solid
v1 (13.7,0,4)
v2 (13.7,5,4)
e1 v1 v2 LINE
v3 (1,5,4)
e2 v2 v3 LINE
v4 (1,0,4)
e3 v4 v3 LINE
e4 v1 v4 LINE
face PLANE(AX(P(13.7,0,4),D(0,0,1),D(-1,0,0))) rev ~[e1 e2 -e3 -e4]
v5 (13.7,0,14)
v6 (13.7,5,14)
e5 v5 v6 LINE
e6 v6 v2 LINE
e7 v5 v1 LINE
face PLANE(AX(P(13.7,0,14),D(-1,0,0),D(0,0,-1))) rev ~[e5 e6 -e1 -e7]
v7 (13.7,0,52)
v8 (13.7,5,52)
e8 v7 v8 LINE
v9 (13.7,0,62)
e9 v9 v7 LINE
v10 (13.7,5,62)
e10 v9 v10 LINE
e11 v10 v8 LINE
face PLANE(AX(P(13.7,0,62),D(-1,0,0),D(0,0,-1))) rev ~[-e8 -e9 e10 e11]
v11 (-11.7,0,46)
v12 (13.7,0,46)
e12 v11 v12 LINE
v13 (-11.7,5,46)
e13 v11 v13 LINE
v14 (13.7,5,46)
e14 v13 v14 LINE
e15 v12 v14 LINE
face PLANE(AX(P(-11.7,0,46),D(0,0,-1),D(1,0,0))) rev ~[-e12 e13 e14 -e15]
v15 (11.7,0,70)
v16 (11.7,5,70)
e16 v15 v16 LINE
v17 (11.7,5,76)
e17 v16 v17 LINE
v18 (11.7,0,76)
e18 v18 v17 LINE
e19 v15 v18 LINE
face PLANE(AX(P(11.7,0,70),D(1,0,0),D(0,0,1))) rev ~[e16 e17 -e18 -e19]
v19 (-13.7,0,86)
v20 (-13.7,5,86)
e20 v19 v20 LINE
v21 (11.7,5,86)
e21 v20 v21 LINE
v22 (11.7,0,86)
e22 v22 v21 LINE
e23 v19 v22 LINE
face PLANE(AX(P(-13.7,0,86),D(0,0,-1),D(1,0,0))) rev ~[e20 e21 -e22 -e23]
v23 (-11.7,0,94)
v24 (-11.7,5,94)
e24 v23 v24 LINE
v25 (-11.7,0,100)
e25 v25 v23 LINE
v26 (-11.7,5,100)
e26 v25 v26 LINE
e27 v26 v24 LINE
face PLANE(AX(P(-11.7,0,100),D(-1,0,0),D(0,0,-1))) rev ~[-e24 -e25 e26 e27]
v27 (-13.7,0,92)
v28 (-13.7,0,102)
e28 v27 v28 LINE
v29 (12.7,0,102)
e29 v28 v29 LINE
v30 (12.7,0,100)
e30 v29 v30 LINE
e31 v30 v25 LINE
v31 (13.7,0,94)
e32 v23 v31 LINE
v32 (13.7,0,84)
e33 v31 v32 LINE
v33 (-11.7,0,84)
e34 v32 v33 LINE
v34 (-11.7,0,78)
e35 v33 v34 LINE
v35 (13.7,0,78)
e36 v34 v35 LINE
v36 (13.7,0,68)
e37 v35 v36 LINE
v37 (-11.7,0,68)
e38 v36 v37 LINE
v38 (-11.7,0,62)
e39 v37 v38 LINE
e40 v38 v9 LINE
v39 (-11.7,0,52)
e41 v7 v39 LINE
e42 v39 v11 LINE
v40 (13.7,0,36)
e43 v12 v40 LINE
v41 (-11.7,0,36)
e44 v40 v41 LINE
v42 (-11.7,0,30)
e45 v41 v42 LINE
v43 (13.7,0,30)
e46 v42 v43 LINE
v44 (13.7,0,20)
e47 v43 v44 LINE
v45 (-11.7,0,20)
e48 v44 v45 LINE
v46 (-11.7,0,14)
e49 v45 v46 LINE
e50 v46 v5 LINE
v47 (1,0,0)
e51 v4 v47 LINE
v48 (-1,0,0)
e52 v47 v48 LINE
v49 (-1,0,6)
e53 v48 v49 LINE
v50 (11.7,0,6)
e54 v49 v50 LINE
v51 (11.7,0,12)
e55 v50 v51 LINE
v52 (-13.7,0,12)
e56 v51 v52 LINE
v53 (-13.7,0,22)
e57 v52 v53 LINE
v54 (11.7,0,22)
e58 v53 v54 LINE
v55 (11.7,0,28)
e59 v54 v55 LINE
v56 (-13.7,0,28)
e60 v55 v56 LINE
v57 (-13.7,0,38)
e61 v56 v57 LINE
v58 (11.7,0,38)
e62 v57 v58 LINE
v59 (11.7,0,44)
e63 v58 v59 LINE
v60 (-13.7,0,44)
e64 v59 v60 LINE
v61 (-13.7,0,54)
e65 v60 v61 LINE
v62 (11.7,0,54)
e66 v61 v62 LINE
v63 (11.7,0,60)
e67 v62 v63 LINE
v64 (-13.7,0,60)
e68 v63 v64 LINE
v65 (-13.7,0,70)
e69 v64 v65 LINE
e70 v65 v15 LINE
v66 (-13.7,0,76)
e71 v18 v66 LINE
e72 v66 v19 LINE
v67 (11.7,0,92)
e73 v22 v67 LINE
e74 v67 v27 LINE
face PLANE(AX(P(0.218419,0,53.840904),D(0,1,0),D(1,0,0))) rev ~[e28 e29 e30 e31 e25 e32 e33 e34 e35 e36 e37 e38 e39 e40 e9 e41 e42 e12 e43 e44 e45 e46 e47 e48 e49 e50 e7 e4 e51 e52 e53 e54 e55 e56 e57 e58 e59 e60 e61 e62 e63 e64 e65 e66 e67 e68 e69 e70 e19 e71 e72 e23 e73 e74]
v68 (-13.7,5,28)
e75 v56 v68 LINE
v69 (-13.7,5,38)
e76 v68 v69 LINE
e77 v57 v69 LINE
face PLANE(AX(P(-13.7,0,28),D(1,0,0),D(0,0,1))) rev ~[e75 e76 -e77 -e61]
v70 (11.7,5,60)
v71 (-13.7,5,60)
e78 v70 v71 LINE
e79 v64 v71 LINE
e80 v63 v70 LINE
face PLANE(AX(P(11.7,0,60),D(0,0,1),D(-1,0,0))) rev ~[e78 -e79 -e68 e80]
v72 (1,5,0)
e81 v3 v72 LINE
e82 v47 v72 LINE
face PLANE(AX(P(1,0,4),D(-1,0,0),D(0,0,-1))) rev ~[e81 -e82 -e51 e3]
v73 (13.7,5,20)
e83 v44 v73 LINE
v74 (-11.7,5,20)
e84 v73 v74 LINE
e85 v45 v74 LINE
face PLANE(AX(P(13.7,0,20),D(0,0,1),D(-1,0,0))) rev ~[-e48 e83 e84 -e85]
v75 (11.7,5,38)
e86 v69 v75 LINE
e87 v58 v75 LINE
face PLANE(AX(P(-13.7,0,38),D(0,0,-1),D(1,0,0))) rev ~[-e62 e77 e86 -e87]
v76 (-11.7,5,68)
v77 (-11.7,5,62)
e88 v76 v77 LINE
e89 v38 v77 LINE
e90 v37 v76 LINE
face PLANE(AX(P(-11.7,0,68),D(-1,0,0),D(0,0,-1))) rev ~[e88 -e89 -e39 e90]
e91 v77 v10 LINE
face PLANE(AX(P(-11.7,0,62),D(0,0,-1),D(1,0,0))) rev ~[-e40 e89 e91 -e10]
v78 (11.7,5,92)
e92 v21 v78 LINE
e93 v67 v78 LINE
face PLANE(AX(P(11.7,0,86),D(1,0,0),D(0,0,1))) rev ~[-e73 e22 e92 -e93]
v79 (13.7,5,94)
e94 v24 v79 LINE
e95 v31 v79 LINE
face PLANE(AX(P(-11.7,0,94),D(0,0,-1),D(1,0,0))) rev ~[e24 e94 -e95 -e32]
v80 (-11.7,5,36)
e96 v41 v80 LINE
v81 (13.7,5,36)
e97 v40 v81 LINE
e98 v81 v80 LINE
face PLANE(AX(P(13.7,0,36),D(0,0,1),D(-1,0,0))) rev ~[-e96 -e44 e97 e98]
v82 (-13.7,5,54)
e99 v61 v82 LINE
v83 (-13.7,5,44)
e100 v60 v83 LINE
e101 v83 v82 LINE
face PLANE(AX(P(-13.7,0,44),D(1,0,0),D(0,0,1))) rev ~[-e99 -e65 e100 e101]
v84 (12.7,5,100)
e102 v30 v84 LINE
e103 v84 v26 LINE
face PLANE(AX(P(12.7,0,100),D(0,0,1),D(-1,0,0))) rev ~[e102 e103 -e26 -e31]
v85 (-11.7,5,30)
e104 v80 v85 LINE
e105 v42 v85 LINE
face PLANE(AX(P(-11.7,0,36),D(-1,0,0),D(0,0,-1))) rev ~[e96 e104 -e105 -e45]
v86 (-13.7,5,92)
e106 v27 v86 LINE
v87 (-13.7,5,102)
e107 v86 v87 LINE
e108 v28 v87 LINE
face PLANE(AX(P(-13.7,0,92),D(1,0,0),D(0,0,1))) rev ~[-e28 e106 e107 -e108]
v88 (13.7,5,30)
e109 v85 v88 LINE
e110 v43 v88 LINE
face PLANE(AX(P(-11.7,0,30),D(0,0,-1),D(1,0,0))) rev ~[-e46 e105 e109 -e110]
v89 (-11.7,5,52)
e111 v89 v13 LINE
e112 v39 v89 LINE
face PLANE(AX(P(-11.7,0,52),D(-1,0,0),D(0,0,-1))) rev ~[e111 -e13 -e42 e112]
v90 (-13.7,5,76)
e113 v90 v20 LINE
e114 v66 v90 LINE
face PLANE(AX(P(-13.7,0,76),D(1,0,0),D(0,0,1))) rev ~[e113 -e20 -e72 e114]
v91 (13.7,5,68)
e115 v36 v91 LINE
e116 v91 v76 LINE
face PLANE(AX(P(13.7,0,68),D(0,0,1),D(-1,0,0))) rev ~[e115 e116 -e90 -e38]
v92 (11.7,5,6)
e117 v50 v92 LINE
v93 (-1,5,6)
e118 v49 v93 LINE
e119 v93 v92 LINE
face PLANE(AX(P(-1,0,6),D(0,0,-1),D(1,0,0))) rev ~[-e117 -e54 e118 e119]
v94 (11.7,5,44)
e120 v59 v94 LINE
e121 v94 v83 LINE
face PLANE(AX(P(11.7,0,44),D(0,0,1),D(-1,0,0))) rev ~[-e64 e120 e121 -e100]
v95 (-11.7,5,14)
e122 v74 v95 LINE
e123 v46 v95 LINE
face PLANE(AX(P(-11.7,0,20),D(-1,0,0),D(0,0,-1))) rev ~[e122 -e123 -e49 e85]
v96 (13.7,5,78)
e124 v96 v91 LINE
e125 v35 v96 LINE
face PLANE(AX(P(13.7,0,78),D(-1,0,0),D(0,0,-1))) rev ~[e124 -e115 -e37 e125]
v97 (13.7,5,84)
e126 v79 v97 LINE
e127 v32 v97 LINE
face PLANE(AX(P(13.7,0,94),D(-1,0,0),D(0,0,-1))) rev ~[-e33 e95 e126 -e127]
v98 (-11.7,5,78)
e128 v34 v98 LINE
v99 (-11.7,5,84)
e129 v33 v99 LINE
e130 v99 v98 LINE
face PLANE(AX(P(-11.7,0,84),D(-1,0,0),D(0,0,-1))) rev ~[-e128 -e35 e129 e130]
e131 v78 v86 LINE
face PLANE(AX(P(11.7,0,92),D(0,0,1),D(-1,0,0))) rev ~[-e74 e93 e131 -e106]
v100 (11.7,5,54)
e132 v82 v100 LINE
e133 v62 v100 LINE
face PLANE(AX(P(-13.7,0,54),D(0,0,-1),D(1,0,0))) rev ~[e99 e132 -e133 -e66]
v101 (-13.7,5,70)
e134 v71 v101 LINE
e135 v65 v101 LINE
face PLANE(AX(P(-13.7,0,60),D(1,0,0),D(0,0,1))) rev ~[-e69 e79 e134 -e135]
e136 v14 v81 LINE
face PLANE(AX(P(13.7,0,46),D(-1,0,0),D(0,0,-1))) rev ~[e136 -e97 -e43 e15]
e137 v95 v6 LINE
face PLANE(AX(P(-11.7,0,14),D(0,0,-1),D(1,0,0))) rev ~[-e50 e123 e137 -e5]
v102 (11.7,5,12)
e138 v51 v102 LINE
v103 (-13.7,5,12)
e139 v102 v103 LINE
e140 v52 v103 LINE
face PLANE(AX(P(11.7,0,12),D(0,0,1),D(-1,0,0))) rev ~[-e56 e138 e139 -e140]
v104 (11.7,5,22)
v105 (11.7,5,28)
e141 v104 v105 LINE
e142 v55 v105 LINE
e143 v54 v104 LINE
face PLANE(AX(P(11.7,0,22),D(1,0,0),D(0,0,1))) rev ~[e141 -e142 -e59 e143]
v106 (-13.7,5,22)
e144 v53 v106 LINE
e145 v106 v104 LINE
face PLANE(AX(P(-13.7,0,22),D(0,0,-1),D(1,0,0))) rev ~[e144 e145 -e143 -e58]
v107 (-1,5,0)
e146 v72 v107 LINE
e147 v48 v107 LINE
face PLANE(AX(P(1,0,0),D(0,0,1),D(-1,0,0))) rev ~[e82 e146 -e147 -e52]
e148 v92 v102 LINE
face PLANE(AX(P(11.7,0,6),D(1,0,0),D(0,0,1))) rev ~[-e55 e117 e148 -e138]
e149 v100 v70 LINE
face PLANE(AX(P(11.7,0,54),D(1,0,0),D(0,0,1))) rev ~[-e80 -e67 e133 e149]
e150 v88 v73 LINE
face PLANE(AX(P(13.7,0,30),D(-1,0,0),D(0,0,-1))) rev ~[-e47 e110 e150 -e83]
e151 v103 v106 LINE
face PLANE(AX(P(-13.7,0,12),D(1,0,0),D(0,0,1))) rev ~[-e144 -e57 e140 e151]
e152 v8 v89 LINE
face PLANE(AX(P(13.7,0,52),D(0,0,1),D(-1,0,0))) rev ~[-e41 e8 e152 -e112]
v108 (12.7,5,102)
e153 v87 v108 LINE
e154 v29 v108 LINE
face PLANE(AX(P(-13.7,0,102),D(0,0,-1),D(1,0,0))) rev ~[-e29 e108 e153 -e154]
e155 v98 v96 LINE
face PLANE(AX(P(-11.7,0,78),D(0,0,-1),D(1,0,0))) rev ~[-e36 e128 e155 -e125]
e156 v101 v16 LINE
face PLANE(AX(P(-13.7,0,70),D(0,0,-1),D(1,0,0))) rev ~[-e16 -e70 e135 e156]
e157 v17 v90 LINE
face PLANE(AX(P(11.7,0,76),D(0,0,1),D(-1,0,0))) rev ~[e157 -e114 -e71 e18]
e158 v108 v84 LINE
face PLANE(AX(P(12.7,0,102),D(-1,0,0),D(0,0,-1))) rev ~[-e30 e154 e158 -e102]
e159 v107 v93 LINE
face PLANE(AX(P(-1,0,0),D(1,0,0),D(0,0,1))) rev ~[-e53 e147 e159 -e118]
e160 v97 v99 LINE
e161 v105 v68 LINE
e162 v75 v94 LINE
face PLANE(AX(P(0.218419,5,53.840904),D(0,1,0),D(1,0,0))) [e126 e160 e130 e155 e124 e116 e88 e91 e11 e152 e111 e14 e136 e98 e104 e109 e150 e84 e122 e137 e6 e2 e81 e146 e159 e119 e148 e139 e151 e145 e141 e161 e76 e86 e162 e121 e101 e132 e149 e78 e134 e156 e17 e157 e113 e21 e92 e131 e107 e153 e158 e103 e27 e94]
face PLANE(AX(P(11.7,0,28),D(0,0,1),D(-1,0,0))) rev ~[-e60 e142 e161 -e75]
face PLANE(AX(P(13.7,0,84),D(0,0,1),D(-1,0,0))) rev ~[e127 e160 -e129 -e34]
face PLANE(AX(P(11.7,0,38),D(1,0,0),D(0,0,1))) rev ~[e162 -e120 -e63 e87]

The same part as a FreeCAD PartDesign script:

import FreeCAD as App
import Part
import Sketcher


def add_polygon(sketch, points):
    """Adds a closed chain of lines whose ends are joined by coincident constraints."""
    first, n = sketch.GeometryCount, len(points)
    for a, b in zip(points, points[1:] + points[:1]):
        sketch.addGeometry(Part.LineSegment(App.Vector(*a, 0), App.Vector(*b, 0)), False)
    for i in range(n):
        sketch.addConstraint(Sketcher.Constraint("Coincident", first + i, 2, first + (i + 1) % n, 1))

doc = App.newDocument("Part")
body = doc.addObject("PartDesign::Body", "Body")

# Sketch on XZ plane
sketch1 = body.newObject("Sketcher::SketchObject", "Sketch")
sketch1.AttachmentSupport = (doc.getObject("XZ_Plane"), [""])
sketch1.MapMode = "FlatFace"
add_polygon(sketch1, [(-1, 0), (-1, 6), (11.7, 6), (11.7, 12), (-13.7, 12), (-13.7, 22), (11.7, 22), (11.7, 28), (-13.7, 28), (-13.7, 38), (11.7, 38), (11.7, 44), (-13.7, 44), (-13.7, 54), (11.7, 54), (11.7, 60), (-13.7, 60), (-13.7, 70), (11.7, 70), (11.7, 76), (-13.7, 76), (-13.7, 86), (11.7, 86), (11.7, 92), (-13.7, 92), (-13.7, 102), (12.7, 102), (12.7, 100), (-11.7, 100), (-11.7, 94), (13.7, 94), (13.7, 84), (-11.7, 84), (-11.7, 78), (13.7, 78), (13.7, 68), (-11.7, 68), (-11.7, 62), (13.7, 62), (13.7, 52), (-11.7, 52), (-11.7, 46), (13.7, 46), (13.7, 36), (-11.7, 36), (-11.7, 30), (13.7, 30), (13.7, 20), (-11.7, 20), (-11.7, 14), (13.7, 14), (13.7, 4), (1, 4), (1, 0)])  # lines 0-53
sketch1.addConstraint([
    Sketcher.Constraint("Vertical", 0),
    Sketcher.Constraint("Horizontal", 1),
    Sketcher.Constraint("Vertical", 2),
    Sketcher.Constraint("Horizontal", 3),
    Sketcher.Constraint("Vertical", 4),
    Sketcher.Constraint("Horizontal", 5),
    Sketcher.Constraint("Vertical", 6),
    Sketcher.Constraint("Horizontal", 7),
    Sketcher.Constraint("Vertical", 8),
    Sketcher.Constraint("Horizontal", 9),
    Sketcher.Constraint("Vertical", 10),
    Sketcher.Constraint("Horizontal", 11),
    Sketcher.Constraint("Vertical", 12),
    Sketcher.Constraint("Horizontal", 13),
    Sketcher.Constraint("Vertical", 14),
    Sketcher.Constraint("Horizontal", 15),
    Sketcher.Constraint("Vertical", 16),
    Sketcher.Constraint("Horizontal", 17),
    Sketcher.Constraint("Vertical", 18),
    Sketcher.Constraint("Horizontal", 19),
    Sketcher.Constraint("Vertical", 20),
    Sketcher.Constraint("Horizontal", 21),
    Sketcher.Constraint("Vertical", 22),
    Sketcher.Constraint("Horizontal", 23),
    Sketcher.Constraint("Vertical", 24),
    Sketcher.Constraint("Horizontal", 25),
    Sketcher.Constraint("Vertical", 26),
    Sketcher.Constraint("Horizontal", 27),
    Sketcher.Constraint("Vertical", 28),
    Sketcher.Constraint("Horizontal", 29),
    Sketcher.Constraint("Vertical", 30),
    Sketcher.Constraint("Horizontal", 31),
    Sketcher.Constraint("Vertical", 32),
    Sketcher.Constraint("Horizontal", 33),
    Sketcher.Constraint("Vertical", 34),
    Sketcher.Constraint("Horizontal", 35),
    Sketcher.Constraint("Vertical", 36),
    Sketcher.Constraint("Horizontal", 37),
    Sketcher.Constraint("Vertical", 38),
    Sketcher.Constraint("Horizontal", 39),
    Sketcher.Constraint("Vertical", 40),
    Sketcher.Constraint("Horizontal", 41),
    Sketcher.Constraint("Vertical", 42),
    Sketcher.Constraint("Horizontal", 43),
    Sketcher.Constraint("Vertical", 44),
    Sketcher.Constraint("Horizontal", 45),
    Sketcher.Constraint("Vertical", 46),
    Sketcher.Constraint("Horizontal", 47),
    Sketcher.Constraint("Vertical", 48),
    Sketcher.Constraint("Horizontal", 49),
    Sketcher.Constraint("Vertical", 50),
    Sketcher.Constraint("Horizontal", 51),
    Sketcher.Constraint("Vertical", 52),
    Sketcher.Constraint("Horizontal", 53),
    Sketcher.Constraint("Symmetric", 52, 2, 53, 2, -1, 1),
    Sketcher.Constraint("Vertical", 2, 2, 5, 2),
    Sketcher.Constraint("Vertical", 4, 2, 7, 2),
    Sketcher.Constraint("Vertical", 6, 2, 9, 2),
    Sketcher.Constraint("Vertical", 8, 2, 11, 2),
    Sketcher.Constraint("Vertical", 10, 2, 13, 2),
    Sketcher.Constraint("Vertical", 12, 2, 15, 2),
    Sketcher.Constraint("Vertical", 14, 2, 17, 2),
    Sketcher.Constraint("Vertical", 16, 2, 19, 2),
    Sketcher.Constraint("Vertical", 18, 2, 21, 2),
    Sketcher.Constraint("Vertical", 20, 2, 23, 2),
    Sketcher.Constraint("Vertical", 28, 2, 31, 2),
    Sketcher.Constraint("Vertical", 30, 2, 33, 2),
    Sketcher.Constraint("Vertical", 32, 2, 35, 2),
    Sketcher.Constraint("Vertical", 34, 2, 37, 2),
    Sketcher.Constraint("Vertical", 36, 2, 39, 2),
    Sketcher.Constraint("Vertical", 38, 2, 41, 2),
    Sketcher.Constraint("Vertical", 40, 2, 43, 2),
    Sketcher.Constraint("Vertical", 42, 2, 45, 2),
    Sketcher.Constraint("Vertical", 44, 2, 47, 2),
    Sketcher.Constraint("Vertical", 46, 2, 49, 2),
    Sketcher.Constraint("Equal", 23, 29),
    Sketcher.Constraint("Equal", 1, 51),
    Sketcher.Constraint("Equal", 0, 2),
    Sketcher.Constraint("Equal", 2, 6),
    Sketcher.Constraint("Equal", 4, 8),
    Sketcher.Constraint("Equal", 6, 10),
    Sketcher.Constraint("Equal", 8, 12),
    Sketcher.Constraint("Equal", 10, 14),
    Sketcher.Constraint("Equal", 12, 16),
    Sketcher.Constraint("Equal", 14, 18),
    Sketcher.Constraint("Equal", 16, 20),
    Sketcher.Constraint("Equal", 18, 22),
    Sketcher.Constraint("Equal", 20, 24),
    Sketcher.Constraint("Equal", 53, 26),
    Sketcher.Constraint("Equal", 22, 28),
    Sketcher.Constraint("Equal", 24, 30),
    Sketcher.Constraint("Equal", 28, 32),
    Sketcher.Constraint("Equal", 30, 34),
    Sketcher.Constraint("Equal", 32, 36),
    Sketcher.Constraint("Equal", 34, 38),
    Sketcher.Constraint("Equal", 36, 40),
    Sketcher.Constraint("Equal", 38, 42),
    Sketcher.Constraint("Equal", 40, 44),
    Sketcher.Constraint("Equal", 42, 46),
    Sketcher.Constraint("Equal", 44, 48),
    Sketcher.Constraint("Equal", 46, 50),
    Sketcher.Constraint("DistanceX", 53, 2, 53, 1, 2.0),
    Sketcher.Constraint("DistanceY", 0, 1, 0, 2, 6.0),
    Sketcher.Constraint("DistanceY", 4, 1, 4, 2, 10.0),
    Sketcher.Constraint("DistanceX", 1, 1, 1, 2, 12.7),
    Sketcher.Constraint("DistanceX", 3, 2, 3, 1, 25.4),
    Sketcher.Constraint("DistanceX", 25, 1, 25, 2, 26.4),
])
pad1 = body.newObject("PartDesign::Pad", "Pad")
pad1.Profile = sketch1
pad1.Length = 5
pad1.Reversed = True

doc.recompute()
